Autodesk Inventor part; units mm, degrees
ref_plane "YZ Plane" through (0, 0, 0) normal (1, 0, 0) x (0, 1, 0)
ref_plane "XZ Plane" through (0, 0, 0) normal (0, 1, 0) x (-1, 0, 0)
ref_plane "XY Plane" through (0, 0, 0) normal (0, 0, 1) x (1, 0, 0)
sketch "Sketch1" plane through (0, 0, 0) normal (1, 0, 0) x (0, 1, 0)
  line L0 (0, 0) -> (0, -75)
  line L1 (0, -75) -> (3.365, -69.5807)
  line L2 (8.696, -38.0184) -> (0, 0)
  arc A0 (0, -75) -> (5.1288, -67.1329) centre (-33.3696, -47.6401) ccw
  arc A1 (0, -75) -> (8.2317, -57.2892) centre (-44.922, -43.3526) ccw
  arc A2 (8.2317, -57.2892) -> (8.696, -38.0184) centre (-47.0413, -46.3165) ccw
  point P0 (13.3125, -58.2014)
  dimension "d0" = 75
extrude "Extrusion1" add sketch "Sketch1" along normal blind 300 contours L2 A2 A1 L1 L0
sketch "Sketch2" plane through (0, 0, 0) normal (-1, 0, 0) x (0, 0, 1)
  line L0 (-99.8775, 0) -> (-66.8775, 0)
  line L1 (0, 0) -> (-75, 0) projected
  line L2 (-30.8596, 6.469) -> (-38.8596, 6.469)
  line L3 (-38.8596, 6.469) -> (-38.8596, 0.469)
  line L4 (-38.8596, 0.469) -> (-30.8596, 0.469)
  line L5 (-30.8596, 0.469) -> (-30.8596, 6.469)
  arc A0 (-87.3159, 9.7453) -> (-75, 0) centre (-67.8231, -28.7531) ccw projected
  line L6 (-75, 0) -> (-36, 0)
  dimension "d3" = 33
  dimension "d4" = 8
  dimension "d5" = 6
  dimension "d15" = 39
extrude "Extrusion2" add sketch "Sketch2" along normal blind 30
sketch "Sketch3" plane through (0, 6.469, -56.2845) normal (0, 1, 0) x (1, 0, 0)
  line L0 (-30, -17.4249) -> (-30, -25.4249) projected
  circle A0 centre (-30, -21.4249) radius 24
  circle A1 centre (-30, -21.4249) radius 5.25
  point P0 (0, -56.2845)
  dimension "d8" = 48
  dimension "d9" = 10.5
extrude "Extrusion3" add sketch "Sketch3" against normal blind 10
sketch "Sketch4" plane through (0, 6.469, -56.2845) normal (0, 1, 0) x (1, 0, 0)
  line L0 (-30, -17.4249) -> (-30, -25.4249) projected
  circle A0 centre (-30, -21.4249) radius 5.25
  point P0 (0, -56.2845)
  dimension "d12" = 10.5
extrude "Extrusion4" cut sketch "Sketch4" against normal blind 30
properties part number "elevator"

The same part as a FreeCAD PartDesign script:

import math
import FreeCAD as App
import Part
import Sketcher

V = App.Vector
Q = App.Units.Quantity


def add_polygon(sketch, points):
    """Adds a closed chain of lines whose ends are joined by coincident constraints."""
    first, n = sketch.GeometryCount, len(points)
    for a, b in zip(points, points[1:] + points[:1]):
        sketch.addGeometry(Part.LineSegment(App.Vector(*a, 0), App.Vector(*b, 0)), False)
    for i in range(n):
        sketch.addConstraint(Sketcher.Constraint("Coincident", first + i, 2, first + (i + 1) % n, 1))

doc = App.newDocument("Part")
body = doc.addObject("PartDesign::Body", "Body")

sketch1 = body.newObject("Sketcher::SketchObject", "Sketch")
sketch1.AttachmentSupport = (doc.getObject("YZ_Plane"), [""])
sketch1.MapMode = "FlatFace"
sketch1.addGeometry(Part.LineSegment(V(9, -38, 0), V(0, 0, 0)), False)
sketch1.addGeometry(Part.LineSegment(V(0, 0, 0), V(0, -75, 0)), False)
sketch1.addGeometry(Part.LineSegment(V(0, -75, 0), V(3, -70, 0)), False)
sketch1.addGeometry(Part.ArcOfCircle(Part.Circle(V(-45, -43, 0), V(0, 0, 1), 55), math.radians(-28.51), math.radians(-14.69)), False)
sketch1.addGeometry(Part.ArcOfCircle(Part.Circle(V(-47, -46, 0), V(0, 0, 1), 56), math.radians(-11.23), math.radians(8.47)), False)
sketch1.addConstraint(Sketcher.Constraint("Coincident", 0, 2, 1, 1))
sketch1.addConstraint(Sketcher.Constraint("Coincident", 1, 2, 2, 1))
sketch1.addConstraint(Sketcher.Constraint("Coincident", 2, 2, 3, 1))
sketch1.addConstraint(Sketcher.Constraint("Coincident", 3, 2, 4, 1))
sketch1.addConstraint(Sketcher.Constraint("Coincident", 4, 2, 0, 1))
sketch1.addConstraint(Sketcher.Constraint("Vertical", 1))
sketch1.addConstraint(Sketcher.Constraint("Coincident", 0, 2, -1, 1))
sketch1.addConstraint(Sketcher.Constraint("DistanceY", 1, 2, 1, 1, Q("75 mm")))
sketch1.addConstraint(Sketcher.Constraint("Radius", 3, Q("54.9504 mm")))
sketch1.addConstraint(Sketcher.Constraint("Radius", 4, Q("56.3516 mm")))
sketch1.addConstraint(Sketcher.Constraint("Distance", 2, Q("6.379 mm")))
sketch1.addConstraint(Sketcher.Constraint("DistanceX", 3, 3, -1, 1, Q("44.922 mm")))
sketch1.addConstraint(Sketcher.Constraint("DistanceX", -1, 1, 2, 2, Q("3.365 mm")))
sketch1.addConstraint(Sketcher.Constraint("DistanceX", -1, 1, 4, 2, Q("8.696 mm")))
sketch1.addConstraint(Sketcher.Constraint("DistanceY", 4, 3, 3, 3, Q("2.964 mm")))
sketch1.addConstraint(Sketcher.Constraint("DistanceX", 4, 3, 3, 2, Q("55.273 mm")))
pad1 = body.newObject("PartDesign::Pad", "Pad")
pad1.Profile = sketch1
pad1.Length = 300

sketch2 = body.newObject("Sketcher::SketchObject", "Sketch001")
sketch2.AttachmentSupport = (doc.getObject("YZ_Plane"), [""])
sketch2.MapMode = "FlatFace"
add_polygon(sketch2, [(0, -31), (6, -31), (6, -39), (0, -39)])
sketch2.addConstraint(Sketcher.Constraint("Horizontal", 0))
sketch2.addConstraint(Sketcher.Constraint("Vertical", 1))
sketch2.addConstraint(Sketcher.Constraint("Horizontal", 2))
sketch2.addConstraint(Sketcher.Constraint("Vertical", 3))
sketch2.addConstraint(Sketcher.Constraint("DistanceX", 0, 1, 0, 2, Q("6 mm")))
sketch2.addConstraint(Sketcher.Constraint("DistanceY", 1, 2, 1, 1, Q("8 mm")))
sketch2.addConstraint(Sketcher.Constraint("DistanceX", -1, 1, 0, 2, Q("6.469 mm")))
sketch2.addConstraint(Sketcher.Constraint("DistanceY", 0, 2, -1, 1, Q("30.8596 mm")))
pad2 = body.newObject("PartDesign::Pad", "Pad001")
pad2.Profile = sketch2
pad2.Length = 30
pad2.Reversed = True

sketch3 = body.newObject("Sketcher::SketchObject", "Sketch002")
sketch3.AttachmentSupport = (doc.getObject("XZ_Plane"), [""])
sketch3.MapMode = "FlatFace"
sketch3.AttachmentOffset = App.Placement(V(0, 0, -6.469), App.Rotation())
sketch3.addGeometry(Part.Circle(V(-30, -35, 0), V(0, 0, 1), 24), False)
sketch3.addGeometry(Part.Circle(V(-30, -35, 0), V(0, 0, 1), 5), False)
sketch3.addConstraint(Sketcher.Constraint("Coincident", 1, 3, 0, 3))
sketch3.addConstraint(Sketcher.Constraint("Diameter", 0, Q("48 mm")))
sketch3.addConstraint(Sketcher.Constraint("Diameter", 1, Q("10.5 mm")))
sketch3.addConstraint(Sketcher.Constraint("DistanceX", 0, 3, -1, 1, Q("30 mm")))
sketch3.addConstraint(Sketcher.Constraint("DistanceY", 0, 3, -1, 1, Q("34.8596 mm")))
pad3 = body.newObject("PartDesign::Pad", "Pad002")
pad3.Profile = sketch3
pad3.Length = 10

sketch4 = body.newObject("Sketcher::SketchObject", "Sketch003")
sketch4.AttachmentSupport = (doc.getObject("XZ_Plane"), [""])
sketch4.MapMode = "FlatFace"
sketch4.AttachmentOffset = App.Placement(V(0, 0, -6.469), App.Rotation())
sketch4.addGeometry(Part.Circle(V(-30, -35, 0), V(0, 0, 1), 5), False)
sketch4.addConstraint(Sketcher.Constraint("Diameter", 0, Q("10.5 mm")))
sketch4.addConstraint(Sketcher.Constraint("DistanceX", 0, 3, -1, 1, Q("30 mm")))
sketch4.addConstraint(Sketcher.Constraint("DistanceY", 0, 3, -1, 1, Q("34.8596 mm")))
pocket1 = body.newObject("PartDesign::Pocket", "Pocket")
pocket1.Profile = sketch4
pocket1.Length = 30
pocket1.Reversed = True

doc.recompute()
